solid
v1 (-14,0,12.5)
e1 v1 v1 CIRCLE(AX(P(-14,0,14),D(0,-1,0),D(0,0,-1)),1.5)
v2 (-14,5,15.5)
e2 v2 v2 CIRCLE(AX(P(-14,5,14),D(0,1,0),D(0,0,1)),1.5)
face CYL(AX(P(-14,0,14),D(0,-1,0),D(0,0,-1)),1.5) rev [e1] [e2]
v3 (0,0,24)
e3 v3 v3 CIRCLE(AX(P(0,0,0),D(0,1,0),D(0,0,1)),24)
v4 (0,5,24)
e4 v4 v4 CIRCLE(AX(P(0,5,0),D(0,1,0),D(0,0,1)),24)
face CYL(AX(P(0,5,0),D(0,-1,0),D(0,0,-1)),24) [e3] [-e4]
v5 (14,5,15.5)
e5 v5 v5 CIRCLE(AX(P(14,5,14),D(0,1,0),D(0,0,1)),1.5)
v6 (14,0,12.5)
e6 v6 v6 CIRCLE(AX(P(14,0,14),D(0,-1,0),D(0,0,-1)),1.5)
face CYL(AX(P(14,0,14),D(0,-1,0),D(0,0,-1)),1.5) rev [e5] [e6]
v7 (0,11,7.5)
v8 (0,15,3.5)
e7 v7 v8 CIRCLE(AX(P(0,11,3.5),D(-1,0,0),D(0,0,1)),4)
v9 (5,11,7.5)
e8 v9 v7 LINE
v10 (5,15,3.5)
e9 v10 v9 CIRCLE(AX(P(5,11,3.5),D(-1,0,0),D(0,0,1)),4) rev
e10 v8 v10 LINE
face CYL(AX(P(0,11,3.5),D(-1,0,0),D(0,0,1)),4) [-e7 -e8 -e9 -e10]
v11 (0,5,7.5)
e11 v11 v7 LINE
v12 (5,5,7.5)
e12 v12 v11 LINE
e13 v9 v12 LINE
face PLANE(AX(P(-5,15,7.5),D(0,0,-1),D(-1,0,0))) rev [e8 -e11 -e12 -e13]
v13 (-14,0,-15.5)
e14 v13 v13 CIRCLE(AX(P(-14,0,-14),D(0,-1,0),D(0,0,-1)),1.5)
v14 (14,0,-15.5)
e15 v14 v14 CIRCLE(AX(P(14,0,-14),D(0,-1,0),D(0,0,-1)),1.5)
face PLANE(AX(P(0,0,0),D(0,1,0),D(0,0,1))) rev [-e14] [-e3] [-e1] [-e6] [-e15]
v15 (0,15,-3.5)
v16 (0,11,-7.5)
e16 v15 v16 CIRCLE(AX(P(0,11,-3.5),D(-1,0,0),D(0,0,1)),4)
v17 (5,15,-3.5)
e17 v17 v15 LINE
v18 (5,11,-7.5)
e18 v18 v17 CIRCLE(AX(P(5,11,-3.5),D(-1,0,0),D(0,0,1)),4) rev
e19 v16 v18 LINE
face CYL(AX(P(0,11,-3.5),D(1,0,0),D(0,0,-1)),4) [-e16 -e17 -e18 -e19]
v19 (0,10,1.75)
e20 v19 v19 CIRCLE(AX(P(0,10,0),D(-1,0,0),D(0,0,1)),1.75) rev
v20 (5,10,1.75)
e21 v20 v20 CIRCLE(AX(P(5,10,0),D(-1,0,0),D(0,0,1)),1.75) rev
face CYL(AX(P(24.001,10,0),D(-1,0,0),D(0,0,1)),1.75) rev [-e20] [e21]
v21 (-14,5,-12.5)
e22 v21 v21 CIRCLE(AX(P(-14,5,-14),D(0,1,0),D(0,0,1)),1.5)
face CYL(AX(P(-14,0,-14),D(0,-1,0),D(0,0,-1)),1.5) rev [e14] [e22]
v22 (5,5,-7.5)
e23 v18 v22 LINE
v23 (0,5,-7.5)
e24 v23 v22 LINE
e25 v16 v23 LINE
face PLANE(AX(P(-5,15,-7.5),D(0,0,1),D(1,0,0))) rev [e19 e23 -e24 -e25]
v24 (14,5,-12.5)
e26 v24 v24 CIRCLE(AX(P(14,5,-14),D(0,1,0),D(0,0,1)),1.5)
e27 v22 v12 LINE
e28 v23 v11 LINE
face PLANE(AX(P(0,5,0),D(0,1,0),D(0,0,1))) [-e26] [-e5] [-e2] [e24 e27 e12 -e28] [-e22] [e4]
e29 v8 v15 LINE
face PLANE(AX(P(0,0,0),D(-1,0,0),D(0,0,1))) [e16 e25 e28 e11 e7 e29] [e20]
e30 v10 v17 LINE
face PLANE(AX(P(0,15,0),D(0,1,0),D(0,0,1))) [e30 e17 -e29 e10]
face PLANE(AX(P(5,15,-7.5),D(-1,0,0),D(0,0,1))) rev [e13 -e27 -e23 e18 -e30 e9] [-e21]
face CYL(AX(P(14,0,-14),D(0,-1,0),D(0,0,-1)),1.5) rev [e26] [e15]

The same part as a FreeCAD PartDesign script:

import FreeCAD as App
import Part
import Sketcher


def edges_at(feature, points):
    """Names of the edges that pass closest to the given points."""
    edges = feature.Shape.Edges
    near = lambda p: min(range(len(edges)), key=lambda i: edges[i].distToShape(Part.Vertex(*p))[0])
    return sorted({f"Edge{near(p) + 1}" for p in points})

doc = App.newDocument("Part")
body = doc.addObject("PartDesign::Body", "Body")

# Sketch on XZ plane
sketch1 = body.newObject("Sketcher::SketchObject", "Sketch")
sketch1.AttachmentSupport = (doc.getObject("XZ_Plane"), [""])
sketch1.MapMode = "FlatFace"
sketch1.addGeometry(Part.Circle(App.Vector(0, 0, 0), App.Vector(0, 0, 1), 24), False)
sketch1.addConstraint(Sketcher.Constraint("Coincident", 0, 3, -1, 1))
sketch1.addConstraint(Sketcher.Constraint("Diameter", 0, 48.0))
pad1 = body.newObject("PartDesign::Pad", "Pad")
pad1.Profile = sketch1
pad1.Length = 5
pad1.Reversed = True

# Sketch on XZ plane
sketch2 = body.newObject("Sketcher::SketchObject", "Sketch001")
sketch2.AttachmentSupport = (doc.getObject("XZ_Plane"), [""])
sketch2.MapMode = "FlatFace"
sketch2.addGeometry(Part.LineSegment(App.Vector(-5, -8, 0), App.Vector(-5, 8, 0)), False)
sketch2.addGeometry(Part.LineSegment(App.Vector(-5, 8, 0), App.Vector(5, 8, 0)), False)
sketch2.addGeometry(Part.LineSegment(App.Vector(5, 8, 0), App.Vector(5, -8, 0)), False)
sketch2.addGeometry(Part.LineSegment(App.Vector(5, -8, 0), App.Vector(-5, -8, 0)), False)
sketch2.addConstraint(Sketcher.Constraint("Coincident", 0, 2, 1, 1))
sketch2.addConstraint(Sketcher.Constraint("Coincident", 1, 2, 2, 1))
sketch2.addConstraint(Sketcher.Constraint("Coincident", 2, 2, 3, 1))
sketch2.addConstraint(Sketcher.Constraint("Coincident", 3, 2, 0, 1))
sketch2.addConstraint(Sketcher.Constraint("Vertical", 0))
sketch2.addConstraint(Sketcher.Constraint("Horizontal", 1))
sketch2.addConstraint(Sketcher.Constraint("Vertical", 2))
sketch2.addConstraint(Sketcher.Constraint("Horizontal", 3))
sketch2.addConstraint(Sketcher.Constraint("Symmetric", 0, 2, 2, 2, -1, 1))
sketch2.addConstraint(Sketcher.Constraint("DistanceX", 1, 1, 1, 2, 10.0))
sketch2.addConstraint(Sketcher.Constraint("DistanceY", 0, 1, 0, 2, 15.0))
pad2 = body.newObject("PartDesign::Pad", "Pad001")
pad2.Profile = sketch2
pad2.Length = 15
pad2.Reversed = True

# Sketch on YZ plane
sketch3 = body.newObject("Sketcher::SketchObject", "Sketch002")
sketch3.AttachmentSupport = (doc.getObject("YZ_Plane"), [""])
sketch3.MapMode = "FlatFace"
sketch3.AttachmentOffset = App.Placement(App.Vector(0, 0, -5), App.Rotation())
sketch3.addGeometry(Part.Circle(App.Vector(10, 0, 0), App.Vector(0, 0, 1), 1.8), False)
sketch3.addConstraint(Sketcher.Constraint("PointOnObject", 0, 3, -1))
sketch3.addConstraint(Sketcher.Constraint("Diameter", 0, 3.5))
sketch3.addConstraint(Sketcher.Constraint("DistanceX", -1, 1, 0, 3, 10.0))
pocket1 = body.newObject("PartDesign::Pocket", "Pocket")
pocket1.Profile = sketch3
pocket1.Type = "UpToFirst"
pocket1.Reversed = True

# Sketch on YZ plane
sketch4 = body.newObject("Sketcher::SketchObject", "Sketch003")
sketch4.AttachmentSupport = (doc.getObject("YZ_Plane"), [""])
sketch4.MapMode = "FlatFace"
sketch4.AttachmentOffset = App.Placement(App.Vector(0, 0, -5), App.Rotation())
sketch4.addGeometry(Part.LineSegment(App.Vector(15, -10, 0), App.Vector(5, -10, 0)), False)
sketch4.addGeometry(Part.LineSegment(App.Vector(5, -10, 0), App.Vector(5, 10, 0)), False)
sketch4.addGeometry(Part.LineSegment(App.Vector(5, 10, 0), App.Vector(15, 10, 0)), False)
sketch4.addGeometry(Part.LineSegment(App.Vector(15, 10, 0), App.Vector(15, -10, 0)), False)
sketch4.addConstraint(Sketcher.Constraint("Coincident", 0, 2, 1, 1))
sketch4.addConstraint(Sketcher.Constraint("Coincident", 1, 2, 2, 1))
sketch4.addConstraint(Sketcher.Constraint("Coincident", 2, 2, 3, 1))
sketch4.addConstraint(Sketcher.Constraint("Coincident", 3, 2, 0, 1))
sketch4.addConstraint(Sketcher.Constraint("Horizontal", 0))
sketch4.addConstraint(Sketcher.Constraint("Vertical", 1))
sketch4.addConstraint(Sketcher.Constraint("Horizontal", 2))
sketch4.addConstraint(Sketcher.Constraint("Vertical", 3))
sketch4.addConstraint(Sketcher.Constraint("DistanceX", 0, 2, 0, 1, 10.0))
sketch4.addConstraint(Sketcher.Constraint("DistanceY", 1, 1, 1, 2, 20.0))
sketch4.addConstraint(Sketcher.Constraint("DistanceX", -1, 1, 0, 2, 5.0))
sketch4.addConstraint(Sketcher.Constraint("DistanceY", 0, 2, -1, 1, 10.0))
pocket2 = body.newObject("PartDesign::Pocket", "Pocket001")
pocket2.Profile = sketch4
pocket2.Length = 5
pocket2.Reversed = True

# Sketch on XZ plane
sketch5 = body.newObject("Sketcher::SketchObject", "Sketch004")
sketch5.AttachmentSupport = (doc.getObject("XZ_Plane"), [""])
sketch5.MapMode = "FlatFace"
sketch5.addGeometry(Part.Circle(App.Vector(14, 14, 0), App.Vector(0, 0, 1), 1.5), False)
sketch5.addGeometry(Part.Circle(App.Vector(14, -14, 0), App.Vector(0, 0, 1), 1.5), False)
sketch5.addGeometry(Part.Circle(App.Vector(-14, 14, 0), App.Vector(0, 0, 1), 1.5), False)
sketch5.addGeometry(Part.Circle(App.Vector(-14, -14, 0), App.Vector(0, 0, 1), 1.5), False)
sketch5.addConstraint(Sketcher.Constraint("Equal", 0, 1))
sketch5.addConstraint(Sketcher.Constraint("Equal", 1, 2))
sketch5.addConstraint(Sketcher.Constraint("Equal", 2, 3))
sketch5.addConstraint(Sketcher.Constraint("Symmetric", 1, 3, 2, 3, -1, 1))
sketch5.addConstraint(Sketcher.Constraint("Symmetric", 0, 3, 3, 3, -1, 1))
sketch5.addConstraint(Sketcher.Constraint("Symmetric", 0, 3, 2, 3, -2))
sketch5.addConstraint(Sketcher.Constraint("Diameter", 0, 3.0))
sketch5.addConstraint(Sketcher.Constraint("DistanceX", -1, 1, 0, 3, 14.0))
sketch5.addConstraint(Sketcher.Constraint("DistanceY", -1, 1, 0, 3, 14.0))
doc.recompute()
hole = body.newObject("PartDesign::Hole", "Hole")
hole.Profile = sketch5
hole.ThreadType = "None"
hole.Diameter = 3
hole.DepthType = "ThroughAll"
doc.recompute()

fillet = body.newObject("PartDesign::Fillet", "Fillet")
fillet.Base = (hole, edges_at(hole, [(2.5, 15, -7.5), (2.5, 15, 7.5)]))
fillet.Radius = 4

doc.recompute()
